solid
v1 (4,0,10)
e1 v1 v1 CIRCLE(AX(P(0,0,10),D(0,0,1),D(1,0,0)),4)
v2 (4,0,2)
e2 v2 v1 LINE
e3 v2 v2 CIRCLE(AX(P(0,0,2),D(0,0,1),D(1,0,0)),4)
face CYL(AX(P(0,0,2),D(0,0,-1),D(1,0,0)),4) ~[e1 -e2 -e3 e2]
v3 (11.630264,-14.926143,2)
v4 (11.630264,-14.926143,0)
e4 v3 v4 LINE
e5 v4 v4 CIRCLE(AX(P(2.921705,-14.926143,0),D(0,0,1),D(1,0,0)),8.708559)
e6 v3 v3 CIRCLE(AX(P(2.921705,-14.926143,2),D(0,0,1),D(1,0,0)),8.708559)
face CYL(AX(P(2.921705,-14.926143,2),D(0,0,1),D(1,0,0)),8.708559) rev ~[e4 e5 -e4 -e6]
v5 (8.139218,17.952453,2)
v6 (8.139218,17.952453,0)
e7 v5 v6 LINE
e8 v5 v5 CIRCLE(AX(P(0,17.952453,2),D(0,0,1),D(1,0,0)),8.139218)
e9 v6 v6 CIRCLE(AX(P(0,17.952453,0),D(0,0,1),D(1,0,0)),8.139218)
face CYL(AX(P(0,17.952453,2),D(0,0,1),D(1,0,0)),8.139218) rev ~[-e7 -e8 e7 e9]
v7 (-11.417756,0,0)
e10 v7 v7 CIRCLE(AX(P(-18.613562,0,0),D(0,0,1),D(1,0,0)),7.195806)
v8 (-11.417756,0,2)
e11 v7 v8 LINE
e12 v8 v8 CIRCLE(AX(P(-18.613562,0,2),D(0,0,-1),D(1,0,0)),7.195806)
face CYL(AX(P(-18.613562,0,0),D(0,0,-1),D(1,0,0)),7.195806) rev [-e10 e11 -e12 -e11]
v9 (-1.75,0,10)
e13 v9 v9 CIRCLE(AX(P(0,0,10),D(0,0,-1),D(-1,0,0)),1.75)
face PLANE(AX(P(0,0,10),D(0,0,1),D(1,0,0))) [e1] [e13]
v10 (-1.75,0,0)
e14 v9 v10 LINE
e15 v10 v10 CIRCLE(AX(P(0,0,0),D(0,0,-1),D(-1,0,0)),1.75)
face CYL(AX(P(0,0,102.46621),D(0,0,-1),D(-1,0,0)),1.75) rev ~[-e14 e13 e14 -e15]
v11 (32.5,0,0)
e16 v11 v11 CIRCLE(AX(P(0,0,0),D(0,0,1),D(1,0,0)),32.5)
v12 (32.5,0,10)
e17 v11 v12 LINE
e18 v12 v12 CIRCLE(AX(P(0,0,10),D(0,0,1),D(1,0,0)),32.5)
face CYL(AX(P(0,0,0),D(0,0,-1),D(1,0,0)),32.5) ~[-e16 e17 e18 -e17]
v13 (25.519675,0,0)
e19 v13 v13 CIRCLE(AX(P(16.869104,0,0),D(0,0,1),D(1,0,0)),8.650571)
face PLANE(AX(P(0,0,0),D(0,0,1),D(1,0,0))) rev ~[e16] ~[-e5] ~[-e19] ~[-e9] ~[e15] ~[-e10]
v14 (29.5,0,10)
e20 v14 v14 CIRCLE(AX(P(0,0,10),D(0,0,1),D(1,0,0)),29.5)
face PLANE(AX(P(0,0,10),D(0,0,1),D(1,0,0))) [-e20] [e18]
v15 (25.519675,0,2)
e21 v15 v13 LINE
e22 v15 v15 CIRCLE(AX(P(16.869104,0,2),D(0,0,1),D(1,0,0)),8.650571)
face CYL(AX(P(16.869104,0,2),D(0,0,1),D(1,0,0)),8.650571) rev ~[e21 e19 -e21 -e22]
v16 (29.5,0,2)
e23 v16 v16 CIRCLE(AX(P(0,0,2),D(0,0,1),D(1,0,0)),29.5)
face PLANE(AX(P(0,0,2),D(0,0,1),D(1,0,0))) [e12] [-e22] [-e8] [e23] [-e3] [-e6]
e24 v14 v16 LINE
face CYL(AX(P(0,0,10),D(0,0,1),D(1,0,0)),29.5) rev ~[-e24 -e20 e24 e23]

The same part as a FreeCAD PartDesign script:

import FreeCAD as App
import Part
import Sketcher

V = App.Vector
Q = App.Units.Quantity

doc = App.newDocument("Part")
body = doc.addObject("PartDesign::Body", "Body")

sketch1 = doc.addObject("Sketcher::SketchObject", "Sketch")
body.addObject(sketch1)
sketch1.AttachmentSupport = (doc.XY_Plane, [""])
sketch1.MapMode = "FlatFace"
sketch1.addGeometry(Part.Circle(V(0, 0, 0), V(0, 0, 1), 32), False)
sketch1.addConstraint([
    Sketcher.Constraint("Coincident", 0, 3, -1, 1),
    Sketcher.Constraint("Diameter", 0, Q("65 mm")),
])
pad1 = doc.addObject("PartDesign::Pad", "Pad")
body.addObject(pad1)
pad1.Profile = sketch1
pad1.Length = 10

sketch2 = doc.addObject("Sketcher::SketchObject", "Sketch001")
body.addObject(sketch2)
sketch2.AttachmentSupport = (doc.XY_Plane, [""])
sketch2.MapMode = "FlatFace"
sketch2.AttachmentOffset = App.Placement(V(0, 0, 10), App.Rotation())
sketch2.addGeometry(Part.Circle(V(0, 0, 0), V(0, 0, 1), 30), False)
sketch2.addConstraint([
    Sketcher.Constraint("Coincident", 0, 3, -1, 1),
    Sketcher.Constraint("Diameter", 0, Q("59 mm")),
])
pocket1 = doc.addObject("PartDesign::Pocket", "Pocket")
body.addObject(pocket1)
pocket1.Profile = sketch2
pocket1.Length = 8

sketch3 = doc.addObject("Sketcher::SketchObject", "Sketch002")
body.addObject(sketch3)
sketch3.AttachmentSupport = (doc.XY_Plane, [""])
sketch3.MapMode = "FlatFace"
sketch3.AttachmentOffset = App.Placement(V(0, 0, 2), App.Rotation())
sketch3.addGeometry(Part.Circle(V(0, 0, 0), V(0, 0, 1), 4), False)
sketch3.addConstraint([
    Sketcher.Constraint("Coincident", 0, 3, -1, 1),
    Sketcher.Constraint("Diameter", 0, Q("8 mm")),
])
pad2 = doc.addObject("PartDesign::Pad", "Pad001")
body.addObject(pad2)
pad2.Profile = sketch3
pad2.Length = 8

sketch4 = doc.addObject("Sketcher::SketchObject", "Sketch003")
body.addObject(sketch4)
sketch4.AttachmentSupport = (doc.XY_Plane, [""])
sketch4.MapMode = "FlatFace"
sketch4.AttachmentOffset = App.Placement(V(0, 0, 10), App.Rotation())
sketch4.addGeometry(Part.Circle(V(0, 0, 0), V(0, 0, 1), 1.8), False)
sketch4.addConstraint([
    Sketcher.Constraint("Coincident", 0, 3, -1, 1),
    Sketcher.Constraint("Diameter", 0, Q("3.5 mm")),
])
doc.recompute()
hole = doc.addObject("PartDesign::Hole", "Hole")
body.addObject(hole)
hole.Profile = sketch4
hole.ThreadType = "None"
hole.Diameter = 3.5
hole.DepthType = "ThroughAll"

sketch5 = doc.addObject("Sketcher::SketchObject", "Sketch004")
body.addObject(sketch5)
sketch5.AttachmentSupport = (doc.XY_Plane, [""])
sketch5.MapMode = "FlatFace"
sketch5.addGeometry(Part.Circle(V(-18, -6, 0), V(0, 0, 1), 8), False)
sketch5.addConstraint([
    Sketcher.Constraint("Diameter", 0, Q("15.172644 mm")),
    Sketcher.Constraint("DistanceX", 0, 3, -1, 1, Q("17.948439 mm")),
    Sketcher.Constraint("DistanceY", 0, 3, -1, 1, Q("5.982571 mm")),
])
pocket2 = doc.addObject("PartDesign::Pocket", "Pocket001")
body.addObject(pocket2)
pocket2.Profile = sketch5
pocket2.Length = 25

sketch6 = doc.addObject("Sketcher::SketchObject", "Sketch005")
body.addObject(sketch6)
sketch6.AttachmentSupport = (doc.XY_Plane, [""])
sketch6.MapMode = "FlatFace"
sketch6.addGeometry(Part.Circle(V(-19, 0, 0), V(0, 0, 1), 7), False)
sketch6.addConstraint([
    Sketcher.Constraint("PointOnObject", 0, 3, -1),
    Sketcher.Constraint("Diameter", 0, Q("14.391612 mm")),
    Sketcher.Constraint("DistanceX", 0, 3, -1, 1, Q("18.613562 mm")),
])
pocket3 = doc.addObject("PartDesign::Pocket", "Pocket002")
body.addObject(pocket3)
pocket3.Profile = sketch6
pocket3.Length = 8
pocket3.Reversed = True

sketch7 = doc.addObject("Sketcher::SketchObject", "Sketch006")
body.addObject(sketch7)
sketch7.AttachmentSupport = (doc.XY_Plane, [""])
sketch7.MapMode = "FlatFace"
sketch7.AttachmentOffset = App.Placement(V(0, 0, 2), App.Rotation())
sketch7.addGeometry(Part.Circle(V(0, 18, 0), V(0, 0, 1), 8), False)
sketch7.addConstraint([
    Sketcher.Constraint("PointOnObject", 0, 3, -2),
    Sketcher.Constraint("Diameter", 0, Q("16.278436 mm")),
    Sketcher.Constraint("DistanceY", -1, 1, 0, 3, Q("17.952453 mm")),
])
pocket4 = doc.addObject("PartDesign::Pocket", "Pocket003")
body.addObject(pocket4)
pocket4.Profile = sketch7
pocket4.Length = 8

sketch8 = doc.addObject("Sketcher::SketchObject", "Sketch007")
body.addObject(sketch8)
sketch8.AttachmentSupport = (doc.XY_Plane, [""])
sketch8.MapMode = "FlatFace"
sketch8.addGeometry(Part.Circle(V(-4, -14, 0), V(0, 0, 1), 9), False)
sketch8.addConstraint([
    Sketcher.Constraint("Diameter", 0, Q("18.363868 mm")),
    Sketcher.Constraint("DistanceX", 0, 3, -1, 1, Q("3.715688 mm")),
    Sketcher.Constraint("DistanceY", 0, 3, -1, 1, Q("14.254572 mm")),
])
pocket5 = doc.addObject("PartDesign::Pocket", "Pocket004")
body.addObject(pocket5)
pocket5.Profile = sketch8
pocket5.Length = 8

sketch9 = doc.addObject("Sketcher::SketchObject", "Sketch008")
body.addObject(sketch9)
sketch9.AttachmentSupport = (doc.XY_Plane, [""])
sketch9.MapMode = "FlatFace"
sketch9.addGeometry(Part.Circle(V(0, -15, 0), V(0, 0, 1), 9), False)
sketch9.addConstraint([
    Sketcher.Constraint("PointOnObject", 0, 3, -2),
    Sketcher.Constraint("Diameter", 0, Q("18.934102 mm")),
    Sketcher.Constraint("DistanceY", 0, 3, -1, 1, Q("15.324812 mm")),
])
pocket6 = doc.addObject("PartDesign::Pocket", "Pocket005")
body.addObject(pocket6)
pocket6.Profile = sketch9
pocket6.Length = 8

sketch10 = doc.addObject("Sketcher::SketchObject", "Sketch009")
body.addObject(sketch10)
sketch10.AttachmentSupport = (doc.XY_Plane, [""])
sketch10.MapMode = "FlatFace"
sketch10.addGeometry(Part.Circle(V(16, 0, 0), V(0, 0, 1), 9), False)
sketch10.addConstraint([
    Sketcher.Constraint("PointOnObject", 0, 3, -1),
    Sketcher.Constraint("Diameter", 0, Q("17.235444 mm")),
    Sketcher.Constraint("DistanceX", -1, 1, 0, 3, Q("15.627168 mm")),
])
pocket7 = doc.addObject("PartDesign::Pocket", "Pocket006")
body.addObject(pocket7)
pocket7.Profile = sketch10
pocket7.Length = 8

sketch11 = doc.addObject("Sketcher::SketchObject", "Sketch010")
body.addObject(sketch11)
sketch11.AttachmentSupport = (doc.XY_Plane, [""])
sketch11.MapMode = "FlatFace"
sketch11.AttachmentOffset = App.Placement(V(0, 0, 2), App.Rotation())
sketch11.addGeometry(Part.Circle(V(17, 0, 0), V(0, 0, 1), 9), False)
sketch11.addConstraint([
    Sketcher.Constraint("PointOnObject", 0, 3, -1),
    Sketcher.Constraint("Diameter", 0, Q("17.301142 mm")),
    Sketcher.Constraint("DistanceX", -1, 1, 0, 3, Q("16.869104 mm")),
])
pocket8 = doc.addObject("PartDesign::Pocket", "Pocket007")
body.addObject(pocket8)
pocket8.Profile = sketch11
pocket8.Length = 8

sketch12 = doc.addObject("Sketcher::SketchObject", "Sketch011")
body.addObject(sketch12)
sketch12.AttachmentSupport = (doc.XY_Plane, [""])
sketch12.MapMode = "FlatFace"
sketch12.AttachmentOffset = App.Placement(V(0, 0, 2), App.Rotation())
sketch12.addGeometry(Part.Circle(V(-5, -11, 0), V(0, 0, 1), 8), False)
sketch12.addConstraint([
    Sketcher.Constraint("Diameter", 0, Q("15.086418 mm")),
    Sketcher.Constraint("DistanceY", 0, 3, -1, 1, Q("11.25865 mm")),
    Sketcher.Constraint("DistanceX", 0, 3, -1, 1, Q("4.684343 mm")),
])
pad3 = doc.addObject("PartDesign::Pad", "Pad002")
body.addObject(pad3)
pad3.Profile = sketch12
pad3.Length = 2
pad3.Reversed = True

sketch13 = doc.addObject("Sketcher::SketchObject", "Sketch012")
body.addObject(sketch13)
sketch13.AttachmentSupport = (doc.XY_Plane, [""])
sketch13.MapMode = "FlatFace"
sketch13.AttachmentOffset = App.Placement(V(0, 0, 2), App.Rotation())
sketch13.addGeometry(Part.Circle(V(0, -17, 0), V(0, 0, 1), 9), False)
sketch13.addConstraint([
    Sketcher.Constraint("PointOnObject", 0, 3, -2),
    Sketcher.Constraint("Diameter", 0, Q("18.503748 mm")),
    Sketcher.Constraint("DistanceY", 0, 3, -1, 1, Q("16.615551 mm")),
])
pad4 = doc.addObject("PartDesign::Pad", "Pad003")
body.addObject(pad4)
pad4.Profile = sketch13
pad4.Length = 2
pad4.Reversed = True

sketch14 = doc.addObject("Sketcher::SketchObject", "Sketch013")
body.addObject(sketch14)
sketch14.AttachmentSupport = (doc.XY_Plane, [""])
sketch14.MapMode = "FlatFace"
sketch14.AttachmentOffset = App.Placement(V(0, 0, 2), App.Rotation())
sketch14.addGeometry(Part.Circle(V(-4, -15, 0), V(0, 0, 1), 10), False)
sketch14.addConstraint([
    Sketcher.Constraint("Diameter", 0, Q("19.727154 mm")),
    Sketcher.Constraint("DistanceX", 0, 3, -1, 1, Q("4.199367 mm")),
    Sketcher.Constraint("DistanceY", 0, 3, -1, 1, Q("15.142487 mm")),
])
pad5 = doc.addObject("PartDesign::Pad", "Pad004")
body.addObject(pad5)
pad5.Profile = sketch14
pad5.Length = 2
pad5.Reversed = True

sketch15 = doc.addObject("Sketcher::SketchObject", "Sketch014")
body.addObject(sketch15)
sketch15.AttachmentSupport = (doc.XY_Plane, [""])
sketch15.MapMode = "FlatFace"
sketch15.AttachmentOffset = App.Placement(V(0, 0, 2), App.Rotation())
sketch15.addGeometry(Part.Circle(V(3, -15, 0), V(0, 0, 1), 9), False)
sketch15.addConstraint([
    Sketcher.Constraint("Diameter", 0, Q("17.417118 mm")),
    Sketcher.Constraint("DistanceX", -1, 1, 0, 3, Q("2.921705 mm")),
    Sketcher.Constraint("DistanceY", 0, 3, -1, 1, Q("14.926143 mm")),
])
pocket9 = doc.addObject("PartDesign::Pocket", "Pocket008")
body.addObject(pocket9)
pocket9.Profile = sketch15
pocket9.Length = 25

doc.recompute()
